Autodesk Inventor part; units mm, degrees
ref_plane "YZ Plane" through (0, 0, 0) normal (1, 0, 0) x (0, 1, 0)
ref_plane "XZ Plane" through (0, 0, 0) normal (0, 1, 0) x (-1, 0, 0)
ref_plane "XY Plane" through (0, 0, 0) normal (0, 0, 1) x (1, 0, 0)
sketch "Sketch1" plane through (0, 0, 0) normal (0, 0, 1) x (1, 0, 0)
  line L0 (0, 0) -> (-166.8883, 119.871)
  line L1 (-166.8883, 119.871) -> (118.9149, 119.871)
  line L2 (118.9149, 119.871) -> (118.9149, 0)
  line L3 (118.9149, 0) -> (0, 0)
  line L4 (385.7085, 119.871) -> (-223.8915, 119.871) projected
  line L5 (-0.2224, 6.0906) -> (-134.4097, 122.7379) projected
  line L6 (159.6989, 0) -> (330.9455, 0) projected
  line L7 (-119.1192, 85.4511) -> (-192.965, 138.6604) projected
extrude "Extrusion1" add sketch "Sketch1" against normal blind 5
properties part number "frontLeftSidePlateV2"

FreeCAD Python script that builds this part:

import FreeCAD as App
import Part
import Sketcher

V = App.Vector

doc = App.newDocument("Part")
body = doc.addObject("PartDesign::Body", "Body")

# Sketch on XY plane
sketch1 = doc.addObject("Sketcher::SketchObject", "Sketch")
body.addObject(sketch1)
sketch1.AttachmentSupport = (doc.XY_Plane, [""])
sketch1.MapMode = "FlatFace"
sketch1.addGeometry([
    Part.LineSegment(V(-167, 120, 0), V(0, 0, 0)),
    Part.LineSegment(V(0, 0, 0), V(119, 0, 0)),
    Part.LineSegment(V(119, 0, 0), V(119, 120, 0)),
    Part.LineSegment(V(119, 120, 0), V(-167, 120, 0)),
], False)
sketch1.addConstraint([
    Sketcher.Constraint("Coincident", 0, 2, 1, 1),
    Sketcher.Constraint("Coincident", 1, 2, 2, 1),
    Sketcher.Constraint("Coincident", 2, 2, 3, 1),
    Sketcher.Constraint("Coincident", 3, 2, 0, 1),
    Sketcher.Constraint("Horizontal", 1),
    Sketcher.Constraint("Vertical", 2),
    Sketcher.Constraint("Horizontal", 3),
    Sketcher.Constraint("Coincident", 0, 2, -1, 1),
    Sketcher.Constraint("DistanceX", 1, 1, 1, 2, 118.915),
    Sketcher.Constraint("DistanceY", 2, 1, 2, 2, 119.871),
    Sketcher.Constraint("Distance", 0, 205.477),
])
pad1 = doc.addObject("PartDesign::Pad", "Pad")
body.addObject(pad1)
pad1.Profile = sketch1
pad1.Length = 5
pad1.Reversed = True

doc.recompute()
